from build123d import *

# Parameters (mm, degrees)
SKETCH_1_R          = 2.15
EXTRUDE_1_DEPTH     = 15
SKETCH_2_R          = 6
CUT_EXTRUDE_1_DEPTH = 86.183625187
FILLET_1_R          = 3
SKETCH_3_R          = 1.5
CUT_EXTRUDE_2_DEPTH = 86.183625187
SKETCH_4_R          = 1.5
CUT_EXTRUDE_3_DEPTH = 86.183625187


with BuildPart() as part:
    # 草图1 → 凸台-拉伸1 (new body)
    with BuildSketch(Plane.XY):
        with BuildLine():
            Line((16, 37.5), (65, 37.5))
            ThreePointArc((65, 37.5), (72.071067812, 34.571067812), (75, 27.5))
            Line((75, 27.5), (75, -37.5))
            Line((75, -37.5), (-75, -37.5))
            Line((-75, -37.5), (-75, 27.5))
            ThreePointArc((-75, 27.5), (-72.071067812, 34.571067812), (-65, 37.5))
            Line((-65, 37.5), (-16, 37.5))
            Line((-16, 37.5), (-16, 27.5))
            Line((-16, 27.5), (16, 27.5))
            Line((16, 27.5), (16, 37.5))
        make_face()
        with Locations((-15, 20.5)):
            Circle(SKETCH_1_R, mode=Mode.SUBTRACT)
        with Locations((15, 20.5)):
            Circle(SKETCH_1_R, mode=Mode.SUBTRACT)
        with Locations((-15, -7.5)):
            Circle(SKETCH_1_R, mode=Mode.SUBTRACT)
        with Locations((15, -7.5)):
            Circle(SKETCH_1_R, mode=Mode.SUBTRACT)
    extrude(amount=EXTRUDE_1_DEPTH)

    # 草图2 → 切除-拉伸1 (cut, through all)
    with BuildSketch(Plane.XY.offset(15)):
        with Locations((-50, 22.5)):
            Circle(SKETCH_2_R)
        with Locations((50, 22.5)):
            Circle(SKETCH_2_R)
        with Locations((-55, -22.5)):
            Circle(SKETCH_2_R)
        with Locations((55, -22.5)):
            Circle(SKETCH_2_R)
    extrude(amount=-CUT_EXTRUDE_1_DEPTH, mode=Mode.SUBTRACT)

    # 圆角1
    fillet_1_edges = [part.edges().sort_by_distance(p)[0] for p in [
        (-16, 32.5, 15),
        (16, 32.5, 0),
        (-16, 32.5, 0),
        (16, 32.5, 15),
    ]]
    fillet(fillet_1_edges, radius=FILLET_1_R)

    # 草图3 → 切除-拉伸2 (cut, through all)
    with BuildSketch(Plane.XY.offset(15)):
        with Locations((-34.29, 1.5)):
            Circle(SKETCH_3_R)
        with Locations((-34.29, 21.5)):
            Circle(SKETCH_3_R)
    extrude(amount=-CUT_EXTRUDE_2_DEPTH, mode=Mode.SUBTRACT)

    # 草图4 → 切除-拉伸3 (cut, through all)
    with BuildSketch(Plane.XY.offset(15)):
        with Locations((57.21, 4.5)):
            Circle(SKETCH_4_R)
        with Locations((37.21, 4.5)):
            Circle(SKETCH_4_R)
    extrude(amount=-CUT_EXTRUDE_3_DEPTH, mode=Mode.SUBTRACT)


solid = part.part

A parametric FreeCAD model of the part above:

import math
import FreeCAD as App
import Part
import Sketcher
from FreeCAD import Vector


def edges_at(feature, points):
    """Names of the edges that pass closest to the given points."""
    edges = feature.Shape.Edges
    near = lambda p: min(range(len(edges)), key=lambda i: edges[i].distToShape(Part.Vertex(*p))[0])
    return sorted({f"Edge{near(p) + 1}" for p in points})

doc = App.newDocument("Part")
params = doc.addObject("Spreadsheet::Sheet", "Params")
for row, (alias, value) in enumerate([
    ("sketch1_radius", "10 mm"),
    ("sketch1_diameter", "4.3 mm"),
    ("sketch1_width", "49 mm"),
    ("sketch1_width2", "32 mm"),
    ("sketch1_height", "65 mm"),
    ("pad1_length", "15 mm"),
    ("sketch2_diameter", "12 mm"),
    ("fillet_radius", "3 mm"),
    ("sketch3_diameter", "3 mm"),
    ("sketch4_diameter", "3 mm"),
], start=1):
    params.set(f"A{row}", alias)
    params.set(f"B{row}", "=" + value)
    params.setAlias(f"B{row}", alias)

body = doc.addObject("PartDesign::Body", "Body")

sketch1 = doc.addObject("Sketcher::SketchObject", "Sketch")
body.addObject(sketch1)
sketch1.AttachmentSupport = (doc.XY_Plane, [""])
sketch1.MapMode = "FlatFace"
sketch1.addGeometry([
    Part.LineSegment(Vector(65, 37.5, 0), Vector(16, 37.5, 0)),
    Part.LineSegment(Vector(16, 37.5, 0), Vector(16, 27.5, 0)),
    Part.LineSegment(Vector(16, 27.5, 0), Vector(-16, 27.5, 0)),
    Part.LineSegment(Vector(-16, 27.5, 0), Vector(-16, 37.5, 0)),
    Part.LineSegment(Vector(-16, 37.5, 0), Vector(-65, 37.5, 0)),
    Part.ArcOfCircle(Part.Circle(Vector(-65, 27.5, 0), Vector(0, 0, 1), 10), math.radians(90), math.radians(180)),
    Part.LineSegment(Vector(-75, 27.5, 0), Vector(-75, -37.5, 0)),
    Part.LineSegment(Vector(-75, -37.5, 0), Vector(75, -37.5, 0)),
    Part.LineSegment(Vector(75, -37.5, 0), Vector(75, 27.5, 0)),
    Part.ArcOfCircle(Part.Circle(Vector(65, 27.5, 0), Vector(0, 0, 1), 10), math.radians(0), math.radians(90)),
    Part.Circle(Vector(15, -7.5, 0), Vector(0, 0, 1), 2.15),
    Part.Circle(Vector(-15, -7.5, 0), Vector(0, 0, 1), 2.15),
    Part.Circle(Vector(15, 20.5, 0), Vector(0, 0, 1), 2.15),
    Part.Circle(Vector(-15, 20.5, 0), Vector(0, 0, 1), 2.15),
], False)
sketch1.addConstraint([
    Sketcher.Constraint("Coincident", 0, 2, 1, 1),
    Sketcher.Constraint("Coincident", 1, 2, 2, 1),
    Sketcher.Constraint("Coincident", 2, 2, 3, 1),
    Sketcher.Constraint("Coincident", 3, 2, 4, 1),
    Sketcher.Constraint("Tangent", 4, 2, 5, 1),
    Sketcher.Constraint("Tangent", 5, 2, 6, 1),
    Sketcher.Constraint("Coincident", 6, 2, 7, 1),
    Sketcher.Constraint("Coincident", 7, 2, 8, 1),
    Sketcher.Constraint("Tangent", 8, 2, 9, 1),
    Sketcher.Constraint("Tangent", 9, 2, 0, 1),
    Sketcher.Constraint("Horizontal", 0),
    Sketcher.Constraint("Vertical", 1),
    Sketcher.Constraint("Horizontal", 2),
    Sketcher.Constraint("Vertical", 3),
    Sketcher.Constraint("Horizontal", 4),
    Sketcher.Constraint("Vertical", 6),
    Sketcher.Constraint("Horizontal", 7),
    Sketcher.Constraint("Vertical", 8),
    Sketcher.Constraint("Equal", 5, 9),
    Sketcher.Constraint("Equal", 10, 11),
    Sketcher.Constraint("Equal", 11, 12),
    Sketcher.Constraint("Equal", 12, 13),
    Sketcher.Constraint("Symmetric", 5, 3, 9, 3, -2),
    Sketcher.Constraint("Symmetric", 10, 3, 11, 3, -2),
    Sketcher.Constraint("Symmetric", 12, 3, 13, 3, -2),
    Sketcher.Constraint("Horizontal", 9, 3, 1, 2),
    Sketcher.Constraint("Vertical", 10, 3, 12, 3),
    Sketcher.Constraint("Equal", 0, 4),
    Sketcher.Constraint("Radius", 5, 10.0),
    Sketcher.Constraint("Diameter", 10, 4.3),
    Sketcher.Constraint("DistanceX", 0, 2, 0, 1, 49.0),
    Sketcher.Constraint("DistanceX", 2, 2, 2, 1, 32.0),
    Sketcher.Constraint("DistanceY", 6, 2, 6, 1, 65.0),
    Sketcher.Constraint("DistanceX", -1, 1, 10, 3, 15.0),
    Sketcher.Constraint("DistanceY", 10, 3, 9, 3, 35.0),
    Sketcher.Constraint("DistanceY", 10, 3, 12, 3, 28.0),
    Sketcher.Constraint("DistanceY", -1, 1, 5, 3, 27.5),
])
sketch1.setExpression("Constraints[28]", "Params.sketch1_radius")
sketch1.setExpression("Constraints[29]", "Params.sketch1_diameter")
sketch1.setExpression("Constraints[30]", "Params.sketch1_width")
sketch1.setExpression("Constraints[31]", "Params.sketch1_width2")
sketch1.setExpression("Constraints[32]", "Params.sketch1_height")
pad1 = doc.addObject("PartDesign::Pad", "Pad")
body.addObject(pad1)
pad1.Profile = sketch1
pad1.setExpression("Length", "Params.pad1_length")

sketch2 = doc.addObject("Sketcher::SketchObject", "Sketch001")
body.addObject(sketch2)
sketch2.AttachmentSupport = (doc.XY_Plane, [""])
sketch2.MapMode = "FlatFace"
sketch2.AttachmentOffset = App.Placement(Vector(0, 0, 15), App.Rotation())
sketch2.addGeometry([
    Part.Circle(Vector(-50, 22.5, 0), Vector(0, 0, 1), 6),
    Part.Circle(Vector(50, 22.5, 0), Vector(0, 0, 1), 6),
    Part.Circle(Vector(-55, -22.5, 0), Vector(0, 0, 1), 6),
    Part.Circle(Vector(55, -22.5, 0), Vector(0, 0, 1), 6),
], False)
sketch2.addConstraint([
    Sketcher.Constraint("Equal", 0, 1),
    Sketcher.Constraint("Equal", 1, 2),
    Sketcher.Constraint("Equal", 2, 3),
    Sketcher.Constraint("Symmetric", 0, 3, 1, 3, -2),
    Sketcher.Constraint("Symmetric", 2, 3, 3, 3, -2),
    Sketcher.Constraint("Diameter", 0, 12.0),
    Sketcher.Constraint("DistanceX", 0, 3, -1, 1, 50.0),
    Sketcher.Constraint("DistanceX", 2, 3, -1, 1, 55.0),
    Sketcher.Constraint("DistanceY", 2, 3, 0, 3, 45.0),
    Sketcher.Constraint("DistanceY", -1, 1, 0, 3, 22.5),
])
sketch2.setExpression("Constraints[5]", "Params.sketch2_diameter")
pocket1 = doc.addObject("PartDesign::Pocket", "Pocket")
body.addObject(pocket1)
pocket1.Profile = sketch2
pocket1.Type = "ThroughAll"
doc.recompute()

fillet = doc.addObject("PartDesign::Fillet", "Fillet")
body.addObject(fillet)
fillet.Base = (pocket1, edges_at(pocket1, [
    (-16, 32.5, 15),
    (16, 32.5, 0),
    (-16, 32.5, 0),
    (16, 32.5, 15),
]))
fillet.setExpression("Radius", "Params.fillet_radius")

sketch3 = doc.addObject("Sketcher::SketchObject", "Sketch002")
body.addObject(sketch3)
sketch3.AttachmentSupport = (doc.XY_Plane, [""])
sketch3.MapMode = "FlatFace"
sketch3.AttachmentOffset = App.Placement(Vector(0, 0, 15), App.Rotation())
sketch3.addGeometry([
    Part.Circle(Vector(-34.29, 1.5, 0), Vector(0, 0, 1), 1.5),
    Part.Circle(Vector(-34.29, 21.5, 0), Vector(0, 0, 1), 1.5),
], False)
sketch3.addConstraint([
    Sketcher.Constraint("Equal", 0, 1),
    Sketcher.Constraint("Vertical", 0, 3, 1, 3),
    Sketcher.Constraint("Diameter", 0, 3.0),
    Sketcher.Constraint("DistanceY", 0, 3, 1, 3, 20.0),
    Sketcher.Constraint("DistanceY", -1, 1, 0, 3, 1.5),
    Sketcher.Constraint("DistanceX", 0, 3, -1, 1, 34.29),
])
sketch3.setExpression("Constraints[2]", "Params.sketch3_diameter")
pocket2 = doc.addObject("PartDesign::Pocket", "Pocket001")
body.addObject(pocket2)
pocket2.Profile = sketch3
pocket2.Type = "ThroughAll"

sketch4 = doc.addObject("Sketcher::SketchObject", "Sketch003")
body.addObject(sketch4)
sketch4.AttachmentSupport = (doc.XY_Plane, [""])
sketch4.MapMode = "FlatFace"
sketch4.AttachmentOffset = App.Placement(Vector(0, 0, 15), App.Rotation())
sketch4.addGeometry([
    Part.Circle(Vector(57.21, 4.5, 0), Vector(0, 0, 1), 1.5),
    Part.Circle(Vector(37.21, 4.5, 0), Vector(0, 0, 1), 1.5),
], False)
sketch4.addConstraint([
    Sketcher.Constraint("Equal", 0, 1),
    Sketcher.Constraint("Horizontal", 0, 3, 1, 3),
    Sketcher.Constraint("Diameter", 0, 3.0),
    Sketcher.Constraint("DistanceX", 1, 3, 0, 3, 20.0),
    Sketcher.Constraint("DistanceY", -1, 1, 0, 3, 4.5),
    Sketcher.Constraint("DistanceX", -1, 1, 0, 3, 57.21),
])
sketch4.setExpression("Constraints[2]", "Params.sketch4_diameter")
pocket3 = doc.addObject("PartDesign::Pocket", "Pocket002")
body.addObject(pocket3)
pocket3.Profile = sketch4
pocket3.Type = "ThroughAll"

doc.recompute()
